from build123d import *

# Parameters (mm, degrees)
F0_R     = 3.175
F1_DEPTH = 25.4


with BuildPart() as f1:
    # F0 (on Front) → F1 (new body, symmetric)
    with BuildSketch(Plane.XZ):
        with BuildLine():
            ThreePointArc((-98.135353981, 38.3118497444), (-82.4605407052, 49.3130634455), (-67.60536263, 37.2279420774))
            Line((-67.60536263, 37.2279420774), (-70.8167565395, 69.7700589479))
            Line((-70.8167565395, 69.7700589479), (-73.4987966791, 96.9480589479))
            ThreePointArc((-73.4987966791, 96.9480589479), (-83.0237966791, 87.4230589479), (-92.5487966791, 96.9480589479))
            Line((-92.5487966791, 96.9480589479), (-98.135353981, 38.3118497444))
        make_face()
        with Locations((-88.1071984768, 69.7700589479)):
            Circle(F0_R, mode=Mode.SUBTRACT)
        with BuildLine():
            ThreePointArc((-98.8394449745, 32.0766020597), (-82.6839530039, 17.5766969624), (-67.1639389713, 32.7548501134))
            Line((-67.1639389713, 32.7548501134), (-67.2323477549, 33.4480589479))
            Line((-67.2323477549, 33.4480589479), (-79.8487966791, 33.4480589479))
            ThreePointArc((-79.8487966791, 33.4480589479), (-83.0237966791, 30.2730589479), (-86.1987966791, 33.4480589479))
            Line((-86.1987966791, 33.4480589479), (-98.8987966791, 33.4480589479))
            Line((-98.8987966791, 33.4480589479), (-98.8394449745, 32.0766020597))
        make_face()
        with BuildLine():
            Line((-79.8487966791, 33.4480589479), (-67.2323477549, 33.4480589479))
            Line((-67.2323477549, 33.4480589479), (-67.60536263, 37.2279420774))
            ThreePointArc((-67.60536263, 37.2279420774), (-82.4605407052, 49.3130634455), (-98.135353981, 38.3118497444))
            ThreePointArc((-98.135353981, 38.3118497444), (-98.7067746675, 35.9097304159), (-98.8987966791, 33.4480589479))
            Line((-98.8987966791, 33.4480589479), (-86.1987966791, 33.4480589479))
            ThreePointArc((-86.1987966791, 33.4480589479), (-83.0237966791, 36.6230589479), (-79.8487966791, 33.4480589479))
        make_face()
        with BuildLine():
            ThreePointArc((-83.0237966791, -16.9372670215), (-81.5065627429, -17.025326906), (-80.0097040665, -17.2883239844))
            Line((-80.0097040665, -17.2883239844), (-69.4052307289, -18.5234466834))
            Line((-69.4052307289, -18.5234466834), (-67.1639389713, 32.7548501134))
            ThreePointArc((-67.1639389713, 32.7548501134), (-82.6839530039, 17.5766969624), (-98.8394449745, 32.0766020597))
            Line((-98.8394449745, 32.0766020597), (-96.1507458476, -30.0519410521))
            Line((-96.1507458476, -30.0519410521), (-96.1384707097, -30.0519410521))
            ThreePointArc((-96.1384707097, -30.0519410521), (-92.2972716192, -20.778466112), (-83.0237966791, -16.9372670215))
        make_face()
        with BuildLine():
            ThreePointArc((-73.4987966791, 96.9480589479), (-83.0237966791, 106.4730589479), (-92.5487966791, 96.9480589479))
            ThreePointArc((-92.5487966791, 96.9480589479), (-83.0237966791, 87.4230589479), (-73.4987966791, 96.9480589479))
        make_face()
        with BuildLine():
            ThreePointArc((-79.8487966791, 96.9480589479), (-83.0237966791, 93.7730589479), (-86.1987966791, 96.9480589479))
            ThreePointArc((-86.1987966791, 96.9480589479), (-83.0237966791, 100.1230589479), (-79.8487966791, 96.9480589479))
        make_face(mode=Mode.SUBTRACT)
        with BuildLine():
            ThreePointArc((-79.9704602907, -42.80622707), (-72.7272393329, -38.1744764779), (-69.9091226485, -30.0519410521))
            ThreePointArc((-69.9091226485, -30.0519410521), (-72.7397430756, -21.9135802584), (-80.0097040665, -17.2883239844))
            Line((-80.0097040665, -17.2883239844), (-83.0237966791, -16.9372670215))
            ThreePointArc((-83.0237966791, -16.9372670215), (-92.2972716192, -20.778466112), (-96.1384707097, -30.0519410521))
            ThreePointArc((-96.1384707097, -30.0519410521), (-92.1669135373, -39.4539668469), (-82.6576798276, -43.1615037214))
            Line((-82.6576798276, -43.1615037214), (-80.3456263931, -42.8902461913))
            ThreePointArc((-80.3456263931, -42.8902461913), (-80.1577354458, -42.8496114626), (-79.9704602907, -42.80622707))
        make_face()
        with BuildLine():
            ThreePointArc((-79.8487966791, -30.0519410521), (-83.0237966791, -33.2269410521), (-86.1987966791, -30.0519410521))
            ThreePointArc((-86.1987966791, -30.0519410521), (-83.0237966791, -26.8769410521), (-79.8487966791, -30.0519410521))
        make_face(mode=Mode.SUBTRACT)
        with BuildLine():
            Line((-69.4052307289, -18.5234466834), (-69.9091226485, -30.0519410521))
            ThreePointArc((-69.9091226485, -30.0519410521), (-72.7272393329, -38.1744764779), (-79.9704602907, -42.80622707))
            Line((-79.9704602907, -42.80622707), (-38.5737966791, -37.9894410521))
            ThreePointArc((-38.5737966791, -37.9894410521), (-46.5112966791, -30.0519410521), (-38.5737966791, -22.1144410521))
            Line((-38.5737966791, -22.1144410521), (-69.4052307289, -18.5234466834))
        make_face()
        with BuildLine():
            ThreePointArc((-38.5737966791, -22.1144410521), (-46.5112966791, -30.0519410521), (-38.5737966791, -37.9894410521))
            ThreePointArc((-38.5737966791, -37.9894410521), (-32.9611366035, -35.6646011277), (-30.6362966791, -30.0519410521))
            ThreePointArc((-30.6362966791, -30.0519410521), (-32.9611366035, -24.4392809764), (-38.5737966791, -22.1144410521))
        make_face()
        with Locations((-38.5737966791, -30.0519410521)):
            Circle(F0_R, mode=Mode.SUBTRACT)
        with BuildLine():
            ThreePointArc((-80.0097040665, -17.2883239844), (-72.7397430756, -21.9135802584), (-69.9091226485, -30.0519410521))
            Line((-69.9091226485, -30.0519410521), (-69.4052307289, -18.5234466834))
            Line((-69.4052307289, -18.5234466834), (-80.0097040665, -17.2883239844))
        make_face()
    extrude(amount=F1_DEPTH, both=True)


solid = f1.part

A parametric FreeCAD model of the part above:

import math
import FreeCAD as App
import Part
import Sketcher
from FreeCAD import Vector
Q = App.Units.Quantity

doc = App.newDocument("Part")
body = doc.addObject("PartDesign::Body", "Body")

# Sketch on XZ plane
sketch1 = doc.addObject("Sketcher::SketchObject", "Sketch")
body.addObject(sketch1)
sketch1.AttachmentSupport = (doc.XZ_Plane, [""])
sketch1.MapMode = "FlatFace"
sketch1.addGeometry([
    Part.ArcOfCircle(Part.Circle(Vector(-38.574, -30.052, 0), Vector(0, 0, 1), 7.938), math.radians(0), math.radians(90)),  # 0
    Part.LineSegment(Vector(-38.574, -22.114, 0), Vector(-69.405, -18.523, 0)),  # 1
    Part.LineSegment(Vector(-69.405, -18.523, 0), Vector(-67.164, 32.755, 0)),  # 2
    Part.LineSegment(Vector(-67.164, 32.755, 0), Vector(-67.232, 33.448, 0)),  # 3
    Part.LineSegment(Vector(-67.232, 33.448, 0), Vector(-67.605, 37.228, 0)),  # 4
    Part.LineSegment(Vector(-67.605, 37.228, 0), Vector(-70.817, 69.77, 0)),  # 5
    Part.LineSegment(Vector(-70.817, 69.77, 0), Vector(-73.499, 96.948, 0)),  # 6
    Part.ArcOfCircle(Part.Circle(Vector(-83.024, 96.948, 0), Vector(0, 0, 1), 9.525), math.radians(0), math.radians(180)),  # 7
    Part.LineSegment(Vector(-92.549, 96.948, 0), Vector(-98.135, 38.312, 0)),  # 8
    Part.ArcOfCircle(Part.Circle(Vector(-83.024, 33.448, 0), Vector(0, 0, 1), 15.875), math.radians(162.16), math.radians(180)),  # 9
    Part.LineSegment(Vector(-98.899, 33.448, 0), Vector(-98.839, 32.077, 0)),  # 10
    Part.LineSegment(Vector(-98.839, 32.077, 0), Vector(-96.151, -30.052, 0)),  # 11
    Part.LineSegment(Vector(-96.151, -30.052, 0), Vector(-96.138, -30.052, 0)),  # 12
    Part.ArcOfCircle(Part.Circle(Vector(-83.024, -30.052, 0), Vector(0, 0, 1), 13.115), math.radians(180), math.radians(272)),  # 13
    Part.LineSegment(Vector(-82.658, -43.162, 0), Vector(-80.346, -42.89, 0)),  # 14
    Part.ArcOfCircle(Part.Circle(Vector(-83.024, -30.052, 0), Vector(0, 0, 1), 13.115), math.radians(-78.22), math.radians(-76.54)),  # 15
    Part.LineSegment(Vector(-79.97, -42.806, 0), Vector(-38.574, -37.989, 0)),  # 16
    Part.ArcOfCircle(Part.Circle(Vector(-38.574, -30.052, 0), Vector(0, 0, 1), 7.938), math.radians(-90), math.radians(0)),  # 17
    Part.Circle(Vector(-83.024, -30.052, 0), Vector(0, 0, 1), 3.175),  # 18
    Part.ArcOfCircle(Part.Circle(Vector(-83.024, -30.052, 0), Vector(0, 0, 1), 13.115), math.radians(76.71), math.radians(90)),  # 19
    Part.LineSegment(Vector(-80.01, -17.288, 0), Vector(-83.024, -16.937, 0)),  # 20
    Part.Circle(Vector(-38.574, -30.052, 0), Vector(0, 0, 1), 3.175),  # 21
    Part.Circle(Vector(-83.024, 33.448, 0), Vector(0, 0, 1), 3.175),  # 22
    Part.Circle(Vector(-88.107, 69.77, 0), Vector(0, 0, 1), 3.175),  # 23
    Part.Circle(Vector(-83.024, 96.948, 0), Vector(0, 0, 1), 3.175),  # 24
], False)
sketch1.addConstraint([
    Sketcher.Constraint("Coincident", 0, 2, 1, 1),
    Sketcher.Constraint("Coincident", 1, 2, 2, 1),
    Sketcher.Constraint("Coincident", 2, 2, 3, 1),
    Sketcher.Constraint("Coincident", 3, 2, 4, 1),
    Sketcher.Constraint("Coincident", 4, 2, 5, 1),
    Sketcher.Constraint("Coincident", 5, 2, 6, 1),
    Sketcher.Constraint("Coincident", 6, 2, 7, 1),
    Sketcher.Constraint("Coincident", 7, 2, 8, 1),
    Sketcher.Constraint("Coincident", 8, 2, 9, 1),
    Sketcher.Constraint("Coincident", 9, 2, 10, 1),
    Sketcher.Constraint("Coincident", 10, 2, 11, 1),
    Sketcher.Constraint("Coincident", 11, 2, 12, 1),
    Sketcher.Constraint("Coincident", 12, 2, 13, 1),
    Sketcher.Constraint("Coincident", 13, 2, 14, 1),
    Sketcher.Constraint("Coincident", 14, 2, 15, 1),
    Sketcher.Constraint("Coincident", 15, 2, 16, 1),
    Sketcher.Constraint("Coincident", 16, 2, 17, 1),
    Sketcher.Constraint("Tangent", 17, 2, 0, 1),
    Sketcher.Constraint("Coincident", 19, 1, 20, 1),
    Sketcher.Constraint("Coincident", 20, 2, 19, 2),
    Sketcher.Constraint("Horizontal", 12),
    Sketcher.Constraint("Coincident", 15, 3, 13, 3),
    Sketcher.Constraint("Coincident", 18, 3, 13, 3),
    Sketcher.Constraint("Coincident", 19, 3, 13, 3),
    Sketcher.Constraint("Coincident", 21, 3, 0, 3),
    Sketcher.Constraint("Coincident", 22, 3, 9, 3),
    Sketcher.Constraint("Coincident", 24, 3, 7, 3),
    Sketcher.Constraint("Equal", 13, 15),
    Sketcher.Constraint("Equal", 0, 17),
    Sketcher.Constraint("Equal", 15, 19),
    Sketcher.Constraint("Equal", 18, 21),
    Sketcher.Constraint("Equal", 21, 22),
    Sketcher.Constraint("Equal", 22, 23),
    Sketcher.Constraint("Equal", 23, 24),
    Sketcher.Constraint("Parallel", 3, 4),
    Sketcher.Constraint("Parallel", 4, 5),
    Sketcher.Constraint("Parallel", 5, 6),
    Sketcher.Constraint("Parallel", 10, 11),
    Sketcher.Constraint("Parallel", 1, 20),
    Sketcher.Constraint("Horizontal", 0, 3, 13, 3),
    Sketcher.Constraint("Horizontal", 22, 3, 3, 2),
    Sketcher.Constraint("Horizontal", 23, 3, 5, 2),
    Sketcher.Constraint("Horizontal", 24, 3, 6, 2),
    Sketcher.Constraint("Horizontal", 6, 2, 7, 2),
    Sketcher.Constraint("Horizontal", 3, 2, 9, 2),
    Sketcher.Constraint("Horizontal", 21, 3, 11, 2),
    Sketcher.Constraint("Horizontal", 12, 2, 17, 2),
    Sketcher.Constraint("Vertical", 7, 3, 9, 3),
    Sketcher.Constraint("Vertical", 9, 3, 13, 3),
    Sketcher.Constraint("Vertical", 21, 3, 0, 2),
    Sketcher.Constraint("Vertical", 0, 2, 16, 2),
    Sketcher.Constraint("Vertical", 24, 3, 20, 2),
    Sketcher.Constraint("Diameter", 18, Q("0.25 in")),
    Sketcher.Constraint("Radius", 0, Q("0.3125 in")),
    Sketcher.Constraint("Radius", 7, Q("0.375 in")),
    Sketcher.Constraint("Radius", 9, Q("0.625 in")),
    Sketcher.Constraint("DistanceY", 0, 3, 7, 3, Q("5 in")),
    Sketcher.Constraint("DistanceY", 9, 3, 7, 3, Q("2.5 in")),
    Sketcher.Constraint("DistanceX", 7, 3, 0, 3, Q("1.75 in")),
    Sketcher.Constraint("DistanceY", 23, 3, 7, 3, Q("1.07 in")),
    Sketcher.Constraint("Radius", 13, 13.114674),
    Sketcher.Constraint("DistanceX", 23, 3, -1, 1, 88.107198),
    Sketcher.Constraint("DistanceX", 23, 3, 7, 3, 5.083402),
    Sketcher.Constraint("DistanceY", 2, 2, 8, 2, 5.557),
    Sketcher.Constraint("Distance", 5, 32.70019),
    Sketcher.Constraint("Distance", 10, 1.372741),
    Sketcher.Constraint("Distance", 14, 2.327911),
    Sketcher.Constraint("DistanceX", 12, 1, 12, 2, 0.012275),
    Sketcher.Constraint("DistanceY", 0, 3, -1, 1, 30.051941),
    Sketcher.Constraint("DistanceX", 1, 2, -1, 1, 69.405231),
    Sketcher.Constraint("DistanceX", 2, 2, -1, 1, 67.163939),
    Sketcher.Constraint("DistanceY", -1, 1, 2, 2, 32.75485),
    Sketcher.Constraint("DistanceX", 13, 2, -1, 1, 82.65768),
    Sketcher.Constraint("DistanceX", 15, 2, -1, 1, 79.97046),
    Sketcher.Constraint("Distance", 1, 31.039854),
])
pad1 = doc.addObject("PartDesign::Pad", "Pad")
body.addObject(pad1)
pad1.Profile = sketch1
pad1.Length = Q("2 in")
pad1.Midplane = True

doc.recompute()
